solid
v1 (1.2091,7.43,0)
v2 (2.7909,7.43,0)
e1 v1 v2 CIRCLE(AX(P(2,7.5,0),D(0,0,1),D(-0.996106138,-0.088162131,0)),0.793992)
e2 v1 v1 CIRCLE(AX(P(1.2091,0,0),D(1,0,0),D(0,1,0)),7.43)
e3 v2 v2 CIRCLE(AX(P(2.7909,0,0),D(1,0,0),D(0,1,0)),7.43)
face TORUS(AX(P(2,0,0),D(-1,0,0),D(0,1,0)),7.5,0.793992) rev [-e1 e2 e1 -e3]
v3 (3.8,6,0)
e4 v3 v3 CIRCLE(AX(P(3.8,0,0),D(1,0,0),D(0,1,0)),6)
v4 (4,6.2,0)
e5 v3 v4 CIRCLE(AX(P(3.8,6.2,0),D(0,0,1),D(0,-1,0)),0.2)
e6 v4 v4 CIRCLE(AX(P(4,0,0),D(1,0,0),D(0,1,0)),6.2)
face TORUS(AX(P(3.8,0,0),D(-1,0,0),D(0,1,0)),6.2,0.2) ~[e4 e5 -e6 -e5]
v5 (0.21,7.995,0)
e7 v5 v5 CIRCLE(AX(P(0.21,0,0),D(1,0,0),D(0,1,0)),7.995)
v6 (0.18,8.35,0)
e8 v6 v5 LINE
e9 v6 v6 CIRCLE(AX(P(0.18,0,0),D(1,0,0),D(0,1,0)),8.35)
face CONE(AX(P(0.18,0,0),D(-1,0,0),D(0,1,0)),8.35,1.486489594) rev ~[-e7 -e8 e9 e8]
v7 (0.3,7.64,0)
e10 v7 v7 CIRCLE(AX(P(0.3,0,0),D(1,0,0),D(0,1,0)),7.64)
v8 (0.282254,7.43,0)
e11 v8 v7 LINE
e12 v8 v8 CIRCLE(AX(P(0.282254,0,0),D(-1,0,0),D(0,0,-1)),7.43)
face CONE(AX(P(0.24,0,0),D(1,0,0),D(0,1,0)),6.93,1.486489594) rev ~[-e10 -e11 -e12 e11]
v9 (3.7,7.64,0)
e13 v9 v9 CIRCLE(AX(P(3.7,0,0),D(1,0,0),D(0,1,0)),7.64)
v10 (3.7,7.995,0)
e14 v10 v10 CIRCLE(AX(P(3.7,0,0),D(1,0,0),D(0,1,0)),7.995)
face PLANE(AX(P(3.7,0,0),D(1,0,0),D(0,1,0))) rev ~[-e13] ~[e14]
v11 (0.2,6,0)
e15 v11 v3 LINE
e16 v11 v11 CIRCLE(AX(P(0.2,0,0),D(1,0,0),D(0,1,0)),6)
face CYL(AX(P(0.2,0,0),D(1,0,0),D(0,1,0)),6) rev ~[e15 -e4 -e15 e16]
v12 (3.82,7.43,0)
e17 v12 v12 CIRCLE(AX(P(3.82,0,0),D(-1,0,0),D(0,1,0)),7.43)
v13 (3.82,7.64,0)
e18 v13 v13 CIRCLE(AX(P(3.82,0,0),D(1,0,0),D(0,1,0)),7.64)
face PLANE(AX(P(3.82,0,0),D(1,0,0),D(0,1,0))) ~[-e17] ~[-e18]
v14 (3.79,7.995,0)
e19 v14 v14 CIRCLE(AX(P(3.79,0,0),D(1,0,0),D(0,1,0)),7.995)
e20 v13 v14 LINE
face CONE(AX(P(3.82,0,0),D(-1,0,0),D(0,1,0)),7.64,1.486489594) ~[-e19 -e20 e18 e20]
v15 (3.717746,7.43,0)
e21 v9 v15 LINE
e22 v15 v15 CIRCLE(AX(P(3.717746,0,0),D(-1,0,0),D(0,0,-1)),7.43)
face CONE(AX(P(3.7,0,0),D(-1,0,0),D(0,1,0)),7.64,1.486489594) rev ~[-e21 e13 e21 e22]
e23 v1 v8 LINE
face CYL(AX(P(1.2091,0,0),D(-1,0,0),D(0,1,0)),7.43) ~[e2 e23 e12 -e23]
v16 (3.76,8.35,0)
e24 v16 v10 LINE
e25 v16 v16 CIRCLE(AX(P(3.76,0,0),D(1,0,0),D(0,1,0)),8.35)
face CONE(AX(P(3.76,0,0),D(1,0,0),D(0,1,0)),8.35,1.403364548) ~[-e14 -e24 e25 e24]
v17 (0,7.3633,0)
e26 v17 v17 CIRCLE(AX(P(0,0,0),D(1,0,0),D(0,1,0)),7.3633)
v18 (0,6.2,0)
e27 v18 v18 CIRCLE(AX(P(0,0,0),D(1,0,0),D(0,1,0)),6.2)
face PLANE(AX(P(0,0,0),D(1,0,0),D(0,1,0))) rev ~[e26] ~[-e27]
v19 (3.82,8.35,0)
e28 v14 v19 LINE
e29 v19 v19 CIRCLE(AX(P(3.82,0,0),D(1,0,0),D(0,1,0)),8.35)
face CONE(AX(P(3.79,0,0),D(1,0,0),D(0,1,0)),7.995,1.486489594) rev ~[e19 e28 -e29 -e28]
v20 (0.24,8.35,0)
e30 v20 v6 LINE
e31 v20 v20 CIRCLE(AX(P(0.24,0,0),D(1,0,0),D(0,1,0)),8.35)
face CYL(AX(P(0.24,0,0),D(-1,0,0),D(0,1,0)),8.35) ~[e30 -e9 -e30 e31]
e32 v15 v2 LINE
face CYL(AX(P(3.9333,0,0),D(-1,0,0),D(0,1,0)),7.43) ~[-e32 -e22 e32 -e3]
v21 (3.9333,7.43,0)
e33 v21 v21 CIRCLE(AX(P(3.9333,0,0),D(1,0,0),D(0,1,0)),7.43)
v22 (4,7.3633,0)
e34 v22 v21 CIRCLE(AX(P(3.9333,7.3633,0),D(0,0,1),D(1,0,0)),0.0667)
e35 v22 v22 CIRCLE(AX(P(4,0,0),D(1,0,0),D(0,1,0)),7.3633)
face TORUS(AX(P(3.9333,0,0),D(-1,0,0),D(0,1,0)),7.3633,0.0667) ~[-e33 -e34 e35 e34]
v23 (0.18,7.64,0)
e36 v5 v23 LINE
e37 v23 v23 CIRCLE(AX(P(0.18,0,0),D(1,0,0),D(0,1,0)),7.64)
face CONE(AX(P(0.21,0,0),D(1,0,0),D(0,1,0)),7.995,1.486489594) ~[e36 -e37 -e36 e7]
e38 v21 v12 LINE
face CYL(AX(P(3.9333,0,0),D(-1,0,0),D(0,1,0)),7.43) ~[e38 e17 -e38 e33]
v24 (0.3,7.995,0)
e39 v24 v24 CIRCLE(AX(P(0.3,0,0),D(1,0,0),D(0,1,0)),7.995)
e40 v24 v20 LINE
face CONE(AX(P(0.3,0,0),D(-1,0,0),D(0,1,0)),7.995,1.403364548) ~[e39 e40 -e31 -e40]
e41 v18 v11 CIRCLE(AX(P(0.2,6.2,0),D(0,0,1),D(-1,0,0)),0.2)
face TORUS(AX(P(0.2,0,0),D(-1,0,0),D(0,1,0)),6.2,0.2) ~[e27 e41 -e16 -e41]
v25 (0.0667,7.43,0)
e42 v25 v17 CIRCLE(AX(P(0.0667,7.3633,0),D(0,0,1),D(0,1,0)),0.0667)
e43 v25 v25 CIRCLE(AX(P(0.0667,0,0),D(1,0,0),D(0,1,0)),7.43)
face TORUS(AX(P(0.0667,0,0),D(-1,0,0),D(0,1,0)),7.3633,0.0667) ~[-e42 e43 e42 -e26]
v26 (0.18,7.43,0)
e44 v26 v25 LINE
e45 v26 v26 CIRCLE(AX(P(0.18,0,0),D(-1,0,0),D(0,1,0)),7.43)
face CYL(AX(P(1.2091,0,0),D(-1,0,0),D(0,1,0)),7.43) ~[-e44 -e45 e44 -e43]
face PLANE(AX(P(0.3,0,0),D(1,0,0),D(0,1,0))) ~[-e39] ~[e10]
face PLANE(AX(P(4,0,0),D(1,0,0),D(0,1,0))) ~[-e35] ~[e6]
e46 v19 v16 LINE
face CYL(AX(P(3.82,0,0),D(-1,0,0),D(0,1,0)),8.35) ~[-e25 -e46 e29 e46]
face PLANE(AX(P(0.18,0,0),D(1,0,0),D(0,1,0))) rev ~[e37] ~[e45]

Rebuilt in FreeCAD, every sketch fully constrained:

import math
import FreeCAD as App
import Part
import Sketcher

V = App.Vector
Q = App.Units.Quantity


def add_polygon(sketch, points):
    """Adds a closed chain of lines whose ends are joined by coincident constraints."""
    first, n = sketch.GeometryCount, len(points)
    for a, b in zip(points, points[1:] + points[:1]):
        sketch.addGeometry(Part.LineSegment(App.Vector(*a, 0), App.Vector(*b, 0)), False)
    for i in range(n):
        sketch.addConstraint(Sketcher.Constraint("Coincident", first + i, 2, first + (i + 1) % n, 1))

doc = App.newDocument("Part")
body = doc.addObject("PartDesign::Body", "Body")

# Sketch on XY plane
sketch1 = doc.addObject("Sketcher::SketchObject", "Sketch")
body.addObject(sketch1)
sketch1.AttachmentSupport = (doc.XY_Plane, [""])
sketch1.MapMode = "FlatFace"
sketch1.addGeometry([
    Part.ArcOfCircle(Part.Circle(V(0.0667, 7.3633, 0), V(0, 0, 1), 0.0667), math.radians(90), math.radians(180)),  # 0
    Part.LineSegment(V(0, 7.3633, 0), V(0, 6.2, 0)),  # 1
    Part.ArcOfCircle(Part.Circle(V(0.2, 6.2, 0), V(0, 0, 1), 0.2), math.radians(180), math.radians(270)),  # 2
    Part.LineSegment(V(0.2, 6, 0), V(3.8, 6, 0)),  # 3
    Part.ArcOfCircle(Part.Circle(V(3.8, 6.2, 0), V(0, 0, 1), 0.2), math.radians(-90), math.radians(0)),  # 4
    Part.LineSegment(V(4, 6.2, 0), V(4, 7.3633, 0)),  # 5
    Part.ArcOfCircle(Part.Circle(V(3.9333, 7.3633, 0), V(0, 0, 1), 0.0667), math.radians(0), math.radians(90)),  # 6
    Part.LineSegment(V(3.9333, 7.43, 0), V(2.7909, 7.43, 0)),  # 7
    Part.ArcOfCircle(Part.Circle(V(2, 7.5, 0), V(0, 0, 1), 0.793992), math.radians(-174.942115), math.radians(-5.057885)),  # 8
    Part.LineSegment(V(1.2091, 7.43, 0), V(0.0667, 7.43, 0)),  # 9
], False)
sketch1.addConstraint([
    Sketcher.Constraint("Tangent", 0, 2, 1, 1),
    Sketcher.Constraint("Tangent", 1, 2, 2, 1),
    Sketcher.Constraint("Tangent", 2, 2, 3, 1),
    Sketcher.Constraint("Tangent", 3, 2, 4, 1),
    Sketcher.Constraint("Tangent", 4, 2, 5, 1),
    Sketcher.Constraint("Tangent", 5, 2, 6, 1),
    Sketcher.Constraint("Tangent", 6, 2, 7, 1),
    Sketcher.Constraint("Coincident", 7, 2, 8, 2),
    Sketcher.Constraint("Coincident", 8, 1, 9, 1),
    Sketcher.Constraint("Tangent", 9, 2, 0, 1),
    Sketcher.Constraint("Vertical", 1),
    Sketcher.Constraint("Horizontal", 3),
    Sketcher.Constraint("Vertical", 5),
    Sketcher.Constraint("Horizontal", 7),
    Sketcher.Constraint("Horizontal", 9),
    Sketcher.Constraint("Equal", 2, 4),
    Sketcher.Constraint("Equal", 0, 6),
    Sketcher.Constraint("PointOnObject", 0, 2, -2),
    Sketcher.Constraint("Horizontal", 0, 3, 6, 3),
    Sketcher.Constraint("Equal", 7, 9),
    Sketcher.Constraint("Radius", 2, Q("0.2 mm")),
    Sketcher.Constraint("DistanceX", 3, 1, 3, 2, Q("3.6 mm")),
    Sketcher.Constraint("DistanceY", -1, 1, 2, 2, Q("6 mm")),
    Sketcher.Constraint("Radius", 8, Q("0.794 mm")),
    Sketcher.Constraint("DistanceY", -1, 1, 8, 3, Q("7.5 mm")),
    Sketcher.Constraint("Radius", 0, Q("0.0667 mm")),
    Sketcher.Constraint("DistanceY", -1, 1, 6, 2, Q("7.43 mm")),
])
revolution = doc.addObject("PartDesign::Revolution", "Revolution")
body.addObject(revolution)
revolution.Profile = sketch1
revolution.ReferenceAxis = (sketch1, ["H_Axis"])
revolution.Angle = 360

# Sketch on XY plane
sketch2 = doc.addObject("Sketcher::SketchObject", "Sketch001")
body.addObject(sketch2)
sketch2.AttachmentSupport = (doc.XY_Plane, [""])
sketch2.MapMode = "FlatFace"
add_polygon(sketch2, [(0.24, 8.35), (0.18, 8.35), (0.21, 7.995), (0.18, 7.64), (0.18, 6.93), (0.24, 6.93), (0.3, 7.64), (0.3, 7.995)])  # lines 0-7
sketch2.addConstraint([
    Sketcher.Constraint("Horizontal", 0),
    Sketcher.Constraint("Vertical", 3),
    Sketcher.Constraint("Horizontal", 4),
    Sketcher.Constraint("Vertical", 6),
    Sketcher.Constraint("Parallel", 2, 5),
    Sketcher.Constraint("Horizontal", 2, 2, 5, 2),
    Sketcher.Constraint("Horizontal", 1, 2, 6, 2),
    Sketcher.Constraint("Vertical", 0, 2, 2, 2),
    Sketcher.Constraint("Vertical", 4, 2, 7, 2),
    Sketcher.Constraint("Equal", 1, 2),
    Sketcher.Constraint("DistanceX", 0, 2, 0, 1, Q("0.06 mm")),
    Sketcher.Constraint("DistanceY", 3, 2, 3, 1, Q("0.71 mm")),
    Sketcher.Constraint("DistanceX", -1, 1, 5, 2, Q("0.3 mm")),
    Sketcher.Constraint("Angle", 1, Q("-85.1696 deg")),
    Sketcher.Constraint("Distance", 7, Q("0.36 mm")),
    Sketcher.Constraint("DistanceY", -1, 1, 0, 2, Q("8.35 mm")),
])
revolution2 = doc.addObject("PartDesign::Revolution", "Revolution001")
body.addObject(revolution2)
revolution2.Profile = sketch2
revolution2.ReferenceAxis = (sketch2, ["H_Axis"])
revolution2.Angle = 360

# Sketch on XY plane
sketch3 = doc.addObject("Sketcher::SketchObject", "Sketch002")
body.addObject(sketch3)
sketch3.AttachmentSupport = (doc.XY_Plane, [""])
sketch3.MapMode = "FlatFace"
add_polygon(sketch3, [(3.76, 8.35), (3.7, 7.995), (3.7, 7.64), (3.76, 6.93), (3.82, 6.93), (3.82, 7.64), (3.79, 7.995), (3.82, 8.35)])  # lines 0-7
sketch3.addConstraint([
    Sketcher.Constraint("Vertical", 1),
    Sketcher.Constraint("Horizontal", 3),
    Sketcher.Constraint("Vertical", 4),
    Sketcher.Constraint("Horizontal", 7),
    Sketcher.Constraint("Parallel", 2, 5),
    Sketcher.Constraint("Horizontal", 1, 2, 4, 2),
    Sketcher.Constraint("Horizontal", 0, 2, 5, 2),
    Sketcher.Constraint("Vertical", 4, 2, 6, 2),
    Sketcher.Constraint("Vertical", 2, 2, 7, 2),
    Sketcher.Constraint("Equal", 5, 6),
    Sketcher.Constraint("DistanceX", 3, 1, 3, 2, Q("0.06 mm")),
    Sketcher.Constraint("DistanceY", 4, 1, 4, 2, Q("0.71 mm")),
    Sketcher.Constraint("DistanceX", -1, 1, 0, 2, Q("3.7 mm")),
    Sketcher.Constraint("Angle", 2, Q("-85.1696 deg")),
    Sketcher.Constraint("Distance", 0, Q("0.36 mm")),
    Sketcher.Constraint("DistanceY", -1, 1, 1, 2, Q("7.64 mm")),
])
revolution3 = doc.addObject("PartDesign::Revolution", "Revolution002")
body.addObject(revolution3)
revolution3.Profile = sketch3
revolution3.ReferenceAxis = (sketch3, ["H_Axis"])
revolution3.Angle = 360

doc.recompute()
